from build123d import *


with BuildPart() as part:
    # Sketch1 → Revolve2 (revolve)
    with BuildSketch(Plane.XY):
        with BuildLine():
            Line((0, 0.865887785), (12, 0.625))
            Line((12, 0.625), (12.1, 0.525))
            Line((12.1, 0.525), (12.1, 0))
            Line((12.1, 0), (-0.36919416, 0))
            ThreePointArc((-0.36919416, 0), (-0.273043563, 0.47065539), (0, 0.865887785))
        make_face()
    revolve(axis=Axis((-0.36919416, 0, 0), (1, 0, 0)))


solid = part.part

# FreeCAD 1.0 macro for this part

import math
import FreeCAD as App
import Part
import Sketcher
from FreeCAD import Vector
Q = App.Units.Quantity

doc = App.newDocument("Part")
body = doc.addObject("PartDesign::Body", "Body")

# Sketch on XY plane
sketch1 = body.newObject("Sketcher::SketchObject", "Sketch")
sketch1.AttachmentSupport = (doc.getObject("XY_Plane"), [""])
sketch1.MapMode = "FlatFace"
sketch1.addGeometry([
    Part.LineSegment(Vector(12, 0.62, 0), Vector(0, 0.87, 0)),  # 0
    Part.ArcOfCircle(Part.Circle(Vector(0.83, 0, 0), Vector(0, 0, 1), 1.2), math.radians(134), math.radians(180)),  # 1
    Part.LineSegment(Vector(-0.37, 0, 0), Vector(12.1, 0, 0)),  # 2
    Part.LineSegment(Vector(12.1, 0, 0), Vector(12.1, 0.53, 0)),  # 3
    Part.LineSegment(Vector(12.1, 0.53, 0), Vector(12, 0.62, 0)),  # 4
], False)
sketch1.addConstraint([
    Sketcher.Constraint("Coincident", 0, 2, 1, 1),
    Sketcher.Constraint("Coincident", 1, 2, 2, 1),
    Sketcher.Constraint("Coincident", 2, 2, 3, 1),
    Sketcher.Constraint("Coincident", 3, 2, 4, 1),
    Sketcher.Constraint("Coincident", 4, 2, 0, 1),
    Sketcher.Constraint("Horizontal", 2),
    Sketcher.Constraint("Vertical", 3),
    Sketcher.Constraint("PointOnObject", 1, 3, -1),
    Sketcher.Constraint("PointOnObject", 0, 2, -2),
    Sketcher.Constraint("PointOnObject", 1, 2, -1),
    Sketcher.Constraint("Radius", 1, Q("1.2 mm")),
    Sketcher.Constraint("Angle", 4, Q("135 deg")),
    Sketcher.Constraint("DistanceX", -1, 1, 4, 2, Q("12 mm")),
    Sketcher.Constraint("DistanceX", -1, 1, 2, 2, Q("12.1 mm")),
    Sketcher.Constraint("Angle", 0, Q("178.85 deg")),
    Sketcher.Constraint("DistanceY", 3, 1, 3, 2, Q("0.525 mm")),
])
revolution = body.newObject("PartDesign::Revolution", "Revolution")
revolution.Profile = sketch1
revolution.ReferenceAxis = (sketch1, ["H_Axis"])
revolution.Angle = 360

doc.recompute()
